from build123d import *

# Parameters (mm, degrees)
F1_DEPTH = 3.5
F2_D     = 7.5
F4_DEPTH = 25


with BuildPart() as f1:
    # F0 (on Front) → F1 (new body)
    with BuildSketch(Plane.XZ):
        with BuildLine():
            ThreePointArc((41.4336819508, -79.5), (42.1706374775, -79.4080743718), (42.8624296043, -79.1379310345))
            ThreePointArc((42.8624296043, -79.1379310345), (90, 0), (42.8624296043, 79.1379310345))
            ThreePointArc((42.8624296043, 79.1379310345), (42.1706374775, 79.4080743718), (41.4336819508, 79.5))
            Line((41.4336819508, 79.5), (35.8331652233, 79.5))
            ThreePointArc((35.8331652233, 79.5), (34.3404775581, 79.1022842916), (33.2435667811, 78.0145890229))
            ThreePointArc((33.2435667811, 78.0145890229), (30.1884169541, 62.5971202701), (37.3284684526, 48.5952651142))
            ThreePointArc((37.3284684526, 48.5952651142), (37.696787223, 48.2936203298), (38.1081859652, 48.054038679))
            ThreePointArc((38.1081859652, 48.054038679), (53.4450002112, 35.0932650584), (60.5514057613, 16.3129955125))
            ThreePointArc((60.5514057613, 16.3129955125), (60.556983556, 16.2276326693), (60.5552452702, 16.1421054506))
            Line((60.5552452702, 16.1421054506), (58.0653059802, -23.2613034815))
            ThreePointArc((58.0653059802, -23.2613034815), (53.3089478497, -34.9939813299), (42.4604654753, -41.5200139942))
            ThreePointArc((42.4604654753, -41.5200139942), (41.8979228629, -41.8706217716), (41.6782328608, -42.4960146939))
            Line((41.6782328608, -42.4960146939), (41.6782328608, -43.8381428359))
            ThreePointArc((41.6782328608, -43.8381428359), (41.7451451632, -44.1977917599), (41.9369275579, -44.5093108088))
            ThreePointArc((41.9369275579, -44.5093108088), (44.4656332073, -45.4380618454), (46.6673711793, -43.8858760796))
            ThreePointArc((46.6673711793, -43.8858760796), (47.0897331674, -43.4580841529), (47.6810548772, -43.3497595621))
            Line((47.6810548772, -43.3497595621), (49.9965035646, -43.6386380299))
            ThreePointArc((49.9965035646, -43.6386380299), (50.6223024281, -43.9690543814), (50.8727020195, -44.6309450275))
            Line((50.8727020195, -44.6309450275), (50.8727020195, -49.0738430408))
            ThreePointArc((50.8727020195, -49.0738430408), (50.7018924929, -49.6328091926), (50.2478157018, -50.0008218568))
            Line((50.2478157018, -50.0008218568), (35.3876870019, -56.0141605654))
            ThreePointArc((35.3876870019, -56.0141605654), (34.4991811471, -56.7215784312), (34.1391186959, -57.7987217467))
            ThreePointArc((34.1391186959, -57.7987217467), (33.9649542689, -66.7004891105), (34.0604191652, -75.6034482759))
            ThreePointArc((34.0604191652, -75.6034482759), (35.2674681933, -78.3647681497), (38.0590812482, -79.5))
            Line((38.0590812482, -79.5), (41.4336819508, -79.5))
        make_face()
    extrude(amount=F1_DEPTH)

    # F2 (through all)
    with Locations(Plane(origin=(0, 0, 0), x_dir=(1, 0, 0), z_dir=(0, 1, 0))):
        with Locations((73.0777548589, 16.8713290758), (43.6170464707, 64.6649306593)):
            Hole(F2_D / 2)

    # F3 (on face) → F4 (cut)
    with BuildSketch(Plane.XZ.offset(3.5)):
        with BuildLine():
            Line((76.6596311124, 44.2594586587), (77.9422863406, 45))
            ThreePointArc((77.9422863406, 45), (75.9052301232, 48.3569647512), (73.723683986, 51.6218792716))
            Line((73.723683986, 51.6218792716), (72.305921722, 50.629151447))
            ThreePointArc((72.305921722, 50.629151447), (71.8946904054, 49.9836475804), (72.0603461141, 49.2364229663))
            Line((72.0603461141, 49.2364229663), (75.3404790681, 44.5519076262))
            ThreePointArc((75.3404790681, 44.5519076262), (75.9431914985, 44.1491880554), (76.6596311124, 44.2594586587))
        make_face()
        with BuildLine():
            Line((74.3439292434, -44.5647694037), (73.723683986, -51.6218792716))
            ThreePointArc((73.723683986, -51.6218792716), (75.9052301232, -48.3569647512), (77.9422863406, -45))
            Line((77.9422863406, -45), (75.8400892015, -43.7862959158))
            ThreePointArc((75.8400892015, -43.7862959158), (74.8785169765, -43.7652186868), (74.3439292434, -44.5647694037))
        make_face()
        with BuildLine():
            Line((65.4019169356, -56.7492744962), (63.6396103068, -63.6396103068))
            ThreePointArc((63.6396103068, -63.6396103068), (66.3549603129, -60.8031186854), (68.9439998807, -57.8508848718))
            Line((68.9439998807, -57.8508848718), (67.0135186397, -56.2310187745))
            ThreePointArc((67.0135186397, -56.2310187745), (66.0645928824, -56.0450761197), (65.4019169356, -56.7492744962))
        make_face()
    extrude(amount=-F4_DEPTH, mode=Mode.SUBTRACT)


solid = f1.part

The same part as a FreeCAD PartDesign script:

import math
import FreeCAD as App
import Part
import Sketcher
Q = App.Units.Quantity

doc = App.newDocument("Part")
body = doc.addObject("PartDesign::Body", "Body")

# Sketch on XZ plane
sketch1 = body.newObject("Sketcher::SketchObject", "Sketch")
sketch1.AttachmentSupport = (doc.getObject("XZ_Plane"), [""])
sketch1.MapMode = "FlatFace"
sketch1.addGeometry([
    Part.ArcOfCircle(Part.Circle(App.Vector(41.433682, -76.5, 0), App.Vector(0, 0, 1), 3), math.radians(-90), math.radians(-61.559282)),  # 0
    Part.ArcOfCircle(Part.Circle(App.Vector(0, 0, 0), App.Vector(0, 0, 1), 90), math.radians(-61.559282), math.radians(61.559282)),  # 1
    Part.ArcOfCircle(Part.Circle(App.Vector(41.433682, 76.5, 0), App.Vector(0, 0, 1), 3), math.radians(61.559282), math.radians(90)),  # 2
    Part.LineSegment(App.Vector(41.433682, 79.5, 0), App.Vector(35.833165, 79.5, 0)),  # 3
    Part.ArcOfCircle(Part.Circle(App.Vector(35.833165, 76.5, 0), App.Vector(0, 0, 1), 3), math.radians(90), math.radians(149.677741)),  # 4
    Part.ArcOfCircle(Part.Circle(App.Vector(53.960354, 65.897877, 0), App.Vector(0, 0, 1), 24), math.radians(149.677741), math.radians(226.132321)),  # 5
    Part.ArcOfCircle(Part.Circle(App.Vector(39.407454, 50.758092, 0), App.Vector(0, 0, 1), 3), math.radians(-133.867679), math.radians(-115.663782)),  # 6
    Part.ArcOfCircle(Part.Circle(App.Vector(20.78461, 12, 0), App.Vector(0, 0, 1), 40), math.radians(6.189945), math.radians(64.336218)),  # 7
    Part.ArcOfCircle(Part.Circle(App.Vector(59.557236, 16.205171, 0), App.Vector(0, 0, 1), 1), math.radians(-3.615768), math.radians(6.189945)),  # 8
    Part.LineSegment(App.Vector(60.555245, 16.142105, 0), App.Vector(58.065306, -23.261303, 0)),  # 9
    Part.ArcOfCircle(Part.Circle(App.Vector(38.105118, -22, 0), App.Vector(0, 0, 1), 20), math.radians(-77.422065), math.radians(-3.615768)),  # 10
    Part.ArcOfCircle(Part.Circle(App.Vector(42.678233, -42.496015, 0), App.Vector(0, 0, 1), 1), math.radians(102.577935), math.radians(180)),  # 11
    Part.LineSegment(App.Vector(41.678233, -42.496015, 0), App.Vector(41.678233, -43.838143, 0)),  # 12
    Part.ArcOfCircle(Part.Circle(App.Vector(42.678233, -43.838143, 0), App.Vector(0, 0, 1), 1), math.radians(180), math.radians(222.157274)),  # 13
    Part.ArcOfCircle(Part.Circle(App.Vector(44.086713, -42.562924, 0), App.Vector(0, 0, 1), 2.9), math.radians(-137.842726), math.radians(-27.141558)),  # 14
    Part.ArcOfCircle(Part.Circle(App.Vector(47.557253, -44.342067, 0), App.Vector(0, 0, 1), 1), math.radians(82.888448), math.radians(152.858442)),  # 15
    Part.LineSegment(App.Vector(47.681055, -43.34976, 0), App.Vector(49.996504, -43.638638, 0)),  # 16
    Part.ArcOfCircle(Part.Circle(App.Vector(49.872702, -44.630945, 0), App.Vector(0, 0, 1), 1), math.radians(0), math.radians(82.888448)),  # 17
    Part.LineSegment(App.Vector(50.872702, -44.630945, 0), App.Vector(50.872702, -49.073843, 0)),  # 18
    Part.ArcOfCircle(Part.Circle(App.Vector(49.872702, -49.073843, 0), App.Vector(0, 0, 1), 1), math.radians(-67.968661), math.radians(0)),  # 19
    Part.LineSegment(App.Vector(50.247816, -50.000822, 0), App.Vector(35.387687, -56.014161, 0)),  # 20
    Part.ArcOfCircle(Part.Circle(App.Vector(36.137914, -57.868118, 0), App.Vector(0, 0, 1), 2), math.radians(112.031339), math.radians(178.011539)),  # 21
    Part.ArcOfCircle(Part.Circle(App.Vector(327.962082, -68, 0), App.Vector(0, 0, 1), 294), math.radians(178.011539), math.radians(181.481953)),  # 22
    Part.ArcOfCircle(Part.Circle(App.Vector(38.059081, -75.5, 0), App.Vector(0, 0, 1), 4), math.radians(-178.518047), math.radians(-90)),  # 23
    Part.LineSegment(App.Vector(38.059081, -79.5, 0), App.Vector(41.433682, -79.5, 0)),  # 24
], False)
sketch1.addConstraint([
    Sketcher.Constraint("Tangent", 0, 2, 1, 1),
    Sketcher.Constraint("Tangent", 1, 2, 2, 1),
    Sketcher.Constraint("Tangent", 2, 2, 3, 1),
    Sketcher.Constraint("Tangent", 3, 2, 4, 1),
    Sketcher.Constraint("Tangent", 4, 2, 5, 1),
    Sketcher.Constraint("Tangent", 5, 2, 6, 1),
    Sketcher.Constraint("Tangent", 6, 2, 7, 2),
    Sketcher.Constraint("Tangent", 7, 1, 8, 2),
    Sketcher.Constraint("Tangent", 8, 1, 9, 1),
    Sketcher.Constraint("Tangent", 9, 2, 10, 2),
    Sketcher.Constraint("Tangent", 10, 1, 11, 1),
    Sketcher.Constraint("Tangent", 11, 2, 12, 1),
    Sketcher.Constraint("Tangent", 12, 2, 13, 1),
    Sketcher.Constraint("Tangent", 13, 2, 14, 1),
    Sketcher.Constraint("Tangent", 14, 2, 15, 2),
    Sketcher.Constraint("Tangent", 15, 1, 16, 1),
    Sketcher.Constraint("Tangent", 16, 2, 17, 2),
    Sketcher.Constraint("Tangent", 17, 1, 18, 1),
    Sketcher.Constraint("Tangent", 18, 2, 19, 2),
    Sketcher.Constraint("Tangent", 19, 1, 20, 1),
    Sketcher.Constraint("Tangent", 20, 2, 21, 1),
    Sketcher.Constraint("Tangent", 21, 2, 22, 1),
    Sketcher.Constraint("Tangent", 22, 2, 23, 1),
    Sketcher.Constraint("Tangent", 23, 2, 24, 1),
    Sketcher.Constraint("Tangent", 24, 2, 0, 1),
    Sketcher.Constraint("Horizontal", 3),
    Sketcher.Constraint("Vertical", 12),
    Sketcher.Constraint("Vertical", 18),
    Sketcher.Constraint("Horizontal", 24),
    Sketcher.Constraint("Coincident", 1, 3, -1, 1),
    Sketcher.Constraint("Equal", 0, 2),
    Sketcher.Constraint("Equal", 2, 4),
    Sketcher.Constraint("Equal", 4, 6),
    Sketcher.Constraint("Equal", 8, 11),
    Sketcher.Constraint("Equal", 11, 13),
    Sketcher.Constraint("Equal", 13, 15),
    Sketcher.Constraint("Equal", 15, 17),
    Sketcher.Constraint("Equal", 17, 19),
    Sketcher.Constraint("Vertical", 0, 3, 2, 3),
    Sketcher.Constraint("Radius", 0, Q("3 mm")),
    Sketcher.Constraint("Radius", 1, Q("90 mm")),
    Sketcher.Constraint("Radius", 5, Q("24 mm")),
    Sketcher.Constraint("Radius", 7, Q("40 mm")),
    Sketcher.Constraint("Radius", 8, Q("1 mm")),
    Sketcher.Constraint("Radius", 10, Q("20 mm")),
    Sketcher.Constraint("Radius", 21, Q("2 mm")),
    Sketcher.Constraint("Radius", 22, Q("294 mm")),
    Sketcher.Constraint("Radius", 23, Q("4 mm")),
    Sketcher.Constraint("Radius", 14, Q("2.9 mm")),
    Sketcher.Constraint("DistanceY", -1, 1, 7, 3, Q("12 mm")),
    Sketcher.Constraint("DistanceY", 10, 3, -1, 1, Q("22 mm")),
    Sketcher.Constraint("DistanceY", 22, 3, -1, 1, Q("68 mm")),
    Sketcher.Constraint("DistanceY", 0, 3, 2, 3, Q("153 mm")),
    Sketcher.Constraint("Distance", 9, Q("39.482001 mm")),
    Sketcher.Constraint("DistanceX", 24, 1, 24, 2, Q("3.374601 mm")),
    Sketcher.Constraint("DistanceY", 18, 2, 18, 1, Q("4.442898 mm")),
    Sketcher.Constraint("Distance", 16, Q("2.3334 mm")),
    Sketcher.Constraint("DistanceY", 12, 2, 12, 1, Q("1.342128 mm")),
    Sketcher.Constraint("DistanceX", 6, 3, 5, 3, Q("14.5529 mm")),
    Sketcher.Constraint("DistanceY", 19, 3, 13, 3, Q("5.2357 mm")),
    Sketcher.Constraint("DistanceX", 21, 3, 14, 3, Q("7.948799 mm")),
    Sketcher.Constraint("DistanceX", 4, 2, 3, 2, Q("2.589598 mm")),
    Sketcher.Constraint("DistanceX", 15, 3, 15, 1, Q("0.123802 mm")),
    Sketcher.Constraint("DistanceX", 22, 2, 21, 2, Q("0.0787 mm")),
    Sketcher.Constraint("Distance", 20, Q("16.03071 mm")),
    Sketcher.Constraint("DistanceX", 3, 2, 3, 1, Q("5.600517 mm")),
    Sketcher.Constraint("DistanceY", -1, 1, 8, 3, Q("16.205171 mm")),
])
pad1 = body.newObject("PartDesign::Pad", "Pad")
pad1.Profile = sketch1
pad1.Length = 3.5

# Sketch on XZ plane
sketch2 = body.newObject("Sketcher::SketchObject", "Sketch001")
sketch2.AttachmentSupport = (doc.getObject("XZ_Plane"), [""])
sketch2.MapMode = "FlatFace"
sketch2.addGeometry([
    Part.Circle(App.Vector(73.077755, -16.871329, 0), App.Vector(0, 0, 1), 3.75),
    Part.Circle(App.Vector(43.617046, -64.664931, 0), App.Vector(0, 0, 1), 3.75),
], False)
sketch2.addConstraint([
    Sketcher.Constraint("Equal", 0, 1),
    Sketcher.Constraint("Diameter", 0, Q("7.5 mm")),
    Sketcher.Constraint("DistanceY", 1, 3, 0, 3, Q("47.793602 mm")),
    Sketcher.Constraint("DistanceY", 0, 3, -1, 1, Q("16.871329 mm")),
    Sketcher.Constraint("DistanceX", 1, 3, 0, 3, Q("29.460708 mm")),
    Sketcher.Constraint("DistanceX", -1, 1, 0, 3, Q("73.077755 mm")),
])
doc.recompute()
hole = body.newObject("PartDesign::Hole", "Hole")
hole.Profile = sketch2
hole.ThreadType = "None"
hole.Diameter = 7.5
hole.DepthType = "ThroughAll"
hole.Reversed = True

# Sketch on XZ plane
sketch3 = body.newObject("Sketcher::SketchObject", "Sketch002")
sketch3.AttachmentSupport = (doc.getObject("XZ_Plane"), [""])
sketch3.MapMode = "FlatFace"
sketch3.AttachmentOffset = App.Placement(App.Vector(0, 0, 3.5), App.Rotation())
sketch3.addGeometry([
    Part.LineSegment(App.Vector(76.659631, 44.259459, 0), App.Vector(77.942286, 45, 0)),  # 0
    Part.ArcOfCircle(Part.Circle(App.Vector(0, 0, 0), App.Vector(0, 0, 1), 90), math.radians(30), math.radians(35)),  # 1
    Part.LineSegment(App.Vector(73.723684, 51.621879, 0), App.Vector(72.305922, 50.629151, 0)),  # 2
    Part.ArcOfCircle(Part.Circle(App.Vector(72.879498, 49.809999, 0), App.Vector(0, 0, 1), 1), math.radians(125), math.radians(215)),  # 3
    Part.LineSegment(App.Vector(72.060346, 49.236423, 0), App.Vector(75.340479, 44.551908, 0)),  # 4
    Part.ArcOfCircle(Part.Circle(App.Vector(76.159631, 45.125484, 0), App.Vector(0, 0, 1), 1), math.radians(-145), math.radians(-60)),  # 5
    Part.LineSegment(App.Vector(74.343929, -44.564769, 0), App.Vector(73.723684, -51.621879, 0)),  # 6
    Part.ArcOfCircle(Part.Circle(App.Vector(0, 0, 0), App.Vector(0, 0, 1), 90), math.radians(-35), math.radians(-30)),  # 7
    Part.LineSegment(App.Vector(77.942286, -45, 0), App.Vector(75.840089, -43.786296, 0)),  # 8
    Part.ArcOfCircle(Part.Circle(App.Vector(75.340089, -44.652321, 0), App.Vector(0, 0, 1), 1), math.radians(60), math.radians(174.977214)),  # 9
    Part.LineSegment(App.Vector(65.401917, -56.749274, 0), App.Vector(63.63961, -63.63961, 0)),  # 10
    Part.ArcOfCircle(Part.Circle(App.Vector(0, 0, 0), App.Vector(0, 0, 1), 90), math.radians(-45), math.radians(-40)),  # 11
    Part.LineSegment(App.Vector(68.944, -57.850885, 0), App.Vector(67.013519, -56.231019, 0)),  # 12
    Part.ArcOfCircle(Part.Circle(App.Vector(66.370731, -56.997063, 0), App.Vector(0, 0, 1), 1), math.radians(50), math.radians(165.653301)),  # 13
], False)
sketch3.addConstraint([
    Sketcher.Constraint("Coincident", 0, 2, 1, 1),
    Sketcher.Constraint("Coincident", 1, 2, 2, 1),
    Sketcher.Constraint("Tangent", 2, 2, 3, 1),
    Sketcher.Constraint("Tangent", 3, 2, 4, 1),
    Sketcher.Constraint("Tangent", 4, 2, 5, 1),
    Sketcher.Constraint("Tangent", 5, 2, 0, 1),
    Sketcher.Constraint("Coincident", 6, 2, 7, 1),
    Sketcher.Constraint("Coincident", 7, 2, 8, 1),
    Sketcher.Constraint("Tangent", 8, 2, 9, 1),
    Sketcher.Constraint("Tangent", 9, 2, 6, 1),
    Sketcher.Constraint("Coincident", 10, 2, 11, 1),
    Sketcher.Constraint("Coincident", 11, 2, 12, 1),
    Sketcher.Constraint("Tangent", 12, 2, 13, 1),
    Sketcher.Constraint("Tangent", 13, 2, 10, 1),
    Sketcher.Constraint("Coincident", 1, 3, -1, 1),
    Sketcher.Constraint("Coincident", 7, 3, -1, 1),
    Sketcher.Constraint("Coincident", 11, 3, -1, 1),
    Sketcher.Constraint("Equal", 3, 5),
    Sketcher.Constraint("Equal", 1, 7),
    Sketcher.Constraint("Equal", 5, 9),
    Sketcher.Constraint("Equal", 7, 11),
    Sketcher.Constraint("Equal", 9, 13),
    Sketcher.Constraint("Perpendicular", 2, 4),
    Sketcher.Constraint("Vertical", 1, 2, 6, 2),
    Sketcher.Constraint("Vertical", 0, 2, 7, 2),
    Sketcher.Constraint("Radius", 1, Q("90 mm")),
    Sketcher.Constraint("Radius", 3, Q("1 mm")),
    Sketcher.Constraint("Angle", 0, Q("30 deg")),
    Sketcher.Constraint("Angle", 2, Q("-145 deg")),
    Sketcher.Constraint("Angle", 8, Q("150 deg")),
    Sketcher.Constraint("Angle", 12, Q("140 deg")),
    Sketcher.Constraint("DistanceY", -1, 1, 0, 2, Q("45 mm")),
    Sketcher.Constraint("DistanceY", -1, 1, 3, 3, Q("49.809999 mm")),
    Sketcher.Constraint("DistanceX", -1, 1, 11, 2, Q("68.944 mm")),
    Sketcher.Constraint("DistanceX", -1, 1, 3, 3, Q("72.879498 mm")),
    Sketcher.Constraint("DistanceX", 13, 3, 5, 3, Q("9.7889 mm")),
    Sketcher.Constraint("DistanceX", 13, 3, 9, 2, Q("7.973198 mm")),
    Sketcher.Constraint("DistanceX", 13, 2, 12, 2, Q("1.611602 mm")),
])
pocket1 = body.newObject("PartDesign::Pocket", "Pocket")
pocket1.Profile = sketch3
pocket1.Length = 25

doc.recompute()
